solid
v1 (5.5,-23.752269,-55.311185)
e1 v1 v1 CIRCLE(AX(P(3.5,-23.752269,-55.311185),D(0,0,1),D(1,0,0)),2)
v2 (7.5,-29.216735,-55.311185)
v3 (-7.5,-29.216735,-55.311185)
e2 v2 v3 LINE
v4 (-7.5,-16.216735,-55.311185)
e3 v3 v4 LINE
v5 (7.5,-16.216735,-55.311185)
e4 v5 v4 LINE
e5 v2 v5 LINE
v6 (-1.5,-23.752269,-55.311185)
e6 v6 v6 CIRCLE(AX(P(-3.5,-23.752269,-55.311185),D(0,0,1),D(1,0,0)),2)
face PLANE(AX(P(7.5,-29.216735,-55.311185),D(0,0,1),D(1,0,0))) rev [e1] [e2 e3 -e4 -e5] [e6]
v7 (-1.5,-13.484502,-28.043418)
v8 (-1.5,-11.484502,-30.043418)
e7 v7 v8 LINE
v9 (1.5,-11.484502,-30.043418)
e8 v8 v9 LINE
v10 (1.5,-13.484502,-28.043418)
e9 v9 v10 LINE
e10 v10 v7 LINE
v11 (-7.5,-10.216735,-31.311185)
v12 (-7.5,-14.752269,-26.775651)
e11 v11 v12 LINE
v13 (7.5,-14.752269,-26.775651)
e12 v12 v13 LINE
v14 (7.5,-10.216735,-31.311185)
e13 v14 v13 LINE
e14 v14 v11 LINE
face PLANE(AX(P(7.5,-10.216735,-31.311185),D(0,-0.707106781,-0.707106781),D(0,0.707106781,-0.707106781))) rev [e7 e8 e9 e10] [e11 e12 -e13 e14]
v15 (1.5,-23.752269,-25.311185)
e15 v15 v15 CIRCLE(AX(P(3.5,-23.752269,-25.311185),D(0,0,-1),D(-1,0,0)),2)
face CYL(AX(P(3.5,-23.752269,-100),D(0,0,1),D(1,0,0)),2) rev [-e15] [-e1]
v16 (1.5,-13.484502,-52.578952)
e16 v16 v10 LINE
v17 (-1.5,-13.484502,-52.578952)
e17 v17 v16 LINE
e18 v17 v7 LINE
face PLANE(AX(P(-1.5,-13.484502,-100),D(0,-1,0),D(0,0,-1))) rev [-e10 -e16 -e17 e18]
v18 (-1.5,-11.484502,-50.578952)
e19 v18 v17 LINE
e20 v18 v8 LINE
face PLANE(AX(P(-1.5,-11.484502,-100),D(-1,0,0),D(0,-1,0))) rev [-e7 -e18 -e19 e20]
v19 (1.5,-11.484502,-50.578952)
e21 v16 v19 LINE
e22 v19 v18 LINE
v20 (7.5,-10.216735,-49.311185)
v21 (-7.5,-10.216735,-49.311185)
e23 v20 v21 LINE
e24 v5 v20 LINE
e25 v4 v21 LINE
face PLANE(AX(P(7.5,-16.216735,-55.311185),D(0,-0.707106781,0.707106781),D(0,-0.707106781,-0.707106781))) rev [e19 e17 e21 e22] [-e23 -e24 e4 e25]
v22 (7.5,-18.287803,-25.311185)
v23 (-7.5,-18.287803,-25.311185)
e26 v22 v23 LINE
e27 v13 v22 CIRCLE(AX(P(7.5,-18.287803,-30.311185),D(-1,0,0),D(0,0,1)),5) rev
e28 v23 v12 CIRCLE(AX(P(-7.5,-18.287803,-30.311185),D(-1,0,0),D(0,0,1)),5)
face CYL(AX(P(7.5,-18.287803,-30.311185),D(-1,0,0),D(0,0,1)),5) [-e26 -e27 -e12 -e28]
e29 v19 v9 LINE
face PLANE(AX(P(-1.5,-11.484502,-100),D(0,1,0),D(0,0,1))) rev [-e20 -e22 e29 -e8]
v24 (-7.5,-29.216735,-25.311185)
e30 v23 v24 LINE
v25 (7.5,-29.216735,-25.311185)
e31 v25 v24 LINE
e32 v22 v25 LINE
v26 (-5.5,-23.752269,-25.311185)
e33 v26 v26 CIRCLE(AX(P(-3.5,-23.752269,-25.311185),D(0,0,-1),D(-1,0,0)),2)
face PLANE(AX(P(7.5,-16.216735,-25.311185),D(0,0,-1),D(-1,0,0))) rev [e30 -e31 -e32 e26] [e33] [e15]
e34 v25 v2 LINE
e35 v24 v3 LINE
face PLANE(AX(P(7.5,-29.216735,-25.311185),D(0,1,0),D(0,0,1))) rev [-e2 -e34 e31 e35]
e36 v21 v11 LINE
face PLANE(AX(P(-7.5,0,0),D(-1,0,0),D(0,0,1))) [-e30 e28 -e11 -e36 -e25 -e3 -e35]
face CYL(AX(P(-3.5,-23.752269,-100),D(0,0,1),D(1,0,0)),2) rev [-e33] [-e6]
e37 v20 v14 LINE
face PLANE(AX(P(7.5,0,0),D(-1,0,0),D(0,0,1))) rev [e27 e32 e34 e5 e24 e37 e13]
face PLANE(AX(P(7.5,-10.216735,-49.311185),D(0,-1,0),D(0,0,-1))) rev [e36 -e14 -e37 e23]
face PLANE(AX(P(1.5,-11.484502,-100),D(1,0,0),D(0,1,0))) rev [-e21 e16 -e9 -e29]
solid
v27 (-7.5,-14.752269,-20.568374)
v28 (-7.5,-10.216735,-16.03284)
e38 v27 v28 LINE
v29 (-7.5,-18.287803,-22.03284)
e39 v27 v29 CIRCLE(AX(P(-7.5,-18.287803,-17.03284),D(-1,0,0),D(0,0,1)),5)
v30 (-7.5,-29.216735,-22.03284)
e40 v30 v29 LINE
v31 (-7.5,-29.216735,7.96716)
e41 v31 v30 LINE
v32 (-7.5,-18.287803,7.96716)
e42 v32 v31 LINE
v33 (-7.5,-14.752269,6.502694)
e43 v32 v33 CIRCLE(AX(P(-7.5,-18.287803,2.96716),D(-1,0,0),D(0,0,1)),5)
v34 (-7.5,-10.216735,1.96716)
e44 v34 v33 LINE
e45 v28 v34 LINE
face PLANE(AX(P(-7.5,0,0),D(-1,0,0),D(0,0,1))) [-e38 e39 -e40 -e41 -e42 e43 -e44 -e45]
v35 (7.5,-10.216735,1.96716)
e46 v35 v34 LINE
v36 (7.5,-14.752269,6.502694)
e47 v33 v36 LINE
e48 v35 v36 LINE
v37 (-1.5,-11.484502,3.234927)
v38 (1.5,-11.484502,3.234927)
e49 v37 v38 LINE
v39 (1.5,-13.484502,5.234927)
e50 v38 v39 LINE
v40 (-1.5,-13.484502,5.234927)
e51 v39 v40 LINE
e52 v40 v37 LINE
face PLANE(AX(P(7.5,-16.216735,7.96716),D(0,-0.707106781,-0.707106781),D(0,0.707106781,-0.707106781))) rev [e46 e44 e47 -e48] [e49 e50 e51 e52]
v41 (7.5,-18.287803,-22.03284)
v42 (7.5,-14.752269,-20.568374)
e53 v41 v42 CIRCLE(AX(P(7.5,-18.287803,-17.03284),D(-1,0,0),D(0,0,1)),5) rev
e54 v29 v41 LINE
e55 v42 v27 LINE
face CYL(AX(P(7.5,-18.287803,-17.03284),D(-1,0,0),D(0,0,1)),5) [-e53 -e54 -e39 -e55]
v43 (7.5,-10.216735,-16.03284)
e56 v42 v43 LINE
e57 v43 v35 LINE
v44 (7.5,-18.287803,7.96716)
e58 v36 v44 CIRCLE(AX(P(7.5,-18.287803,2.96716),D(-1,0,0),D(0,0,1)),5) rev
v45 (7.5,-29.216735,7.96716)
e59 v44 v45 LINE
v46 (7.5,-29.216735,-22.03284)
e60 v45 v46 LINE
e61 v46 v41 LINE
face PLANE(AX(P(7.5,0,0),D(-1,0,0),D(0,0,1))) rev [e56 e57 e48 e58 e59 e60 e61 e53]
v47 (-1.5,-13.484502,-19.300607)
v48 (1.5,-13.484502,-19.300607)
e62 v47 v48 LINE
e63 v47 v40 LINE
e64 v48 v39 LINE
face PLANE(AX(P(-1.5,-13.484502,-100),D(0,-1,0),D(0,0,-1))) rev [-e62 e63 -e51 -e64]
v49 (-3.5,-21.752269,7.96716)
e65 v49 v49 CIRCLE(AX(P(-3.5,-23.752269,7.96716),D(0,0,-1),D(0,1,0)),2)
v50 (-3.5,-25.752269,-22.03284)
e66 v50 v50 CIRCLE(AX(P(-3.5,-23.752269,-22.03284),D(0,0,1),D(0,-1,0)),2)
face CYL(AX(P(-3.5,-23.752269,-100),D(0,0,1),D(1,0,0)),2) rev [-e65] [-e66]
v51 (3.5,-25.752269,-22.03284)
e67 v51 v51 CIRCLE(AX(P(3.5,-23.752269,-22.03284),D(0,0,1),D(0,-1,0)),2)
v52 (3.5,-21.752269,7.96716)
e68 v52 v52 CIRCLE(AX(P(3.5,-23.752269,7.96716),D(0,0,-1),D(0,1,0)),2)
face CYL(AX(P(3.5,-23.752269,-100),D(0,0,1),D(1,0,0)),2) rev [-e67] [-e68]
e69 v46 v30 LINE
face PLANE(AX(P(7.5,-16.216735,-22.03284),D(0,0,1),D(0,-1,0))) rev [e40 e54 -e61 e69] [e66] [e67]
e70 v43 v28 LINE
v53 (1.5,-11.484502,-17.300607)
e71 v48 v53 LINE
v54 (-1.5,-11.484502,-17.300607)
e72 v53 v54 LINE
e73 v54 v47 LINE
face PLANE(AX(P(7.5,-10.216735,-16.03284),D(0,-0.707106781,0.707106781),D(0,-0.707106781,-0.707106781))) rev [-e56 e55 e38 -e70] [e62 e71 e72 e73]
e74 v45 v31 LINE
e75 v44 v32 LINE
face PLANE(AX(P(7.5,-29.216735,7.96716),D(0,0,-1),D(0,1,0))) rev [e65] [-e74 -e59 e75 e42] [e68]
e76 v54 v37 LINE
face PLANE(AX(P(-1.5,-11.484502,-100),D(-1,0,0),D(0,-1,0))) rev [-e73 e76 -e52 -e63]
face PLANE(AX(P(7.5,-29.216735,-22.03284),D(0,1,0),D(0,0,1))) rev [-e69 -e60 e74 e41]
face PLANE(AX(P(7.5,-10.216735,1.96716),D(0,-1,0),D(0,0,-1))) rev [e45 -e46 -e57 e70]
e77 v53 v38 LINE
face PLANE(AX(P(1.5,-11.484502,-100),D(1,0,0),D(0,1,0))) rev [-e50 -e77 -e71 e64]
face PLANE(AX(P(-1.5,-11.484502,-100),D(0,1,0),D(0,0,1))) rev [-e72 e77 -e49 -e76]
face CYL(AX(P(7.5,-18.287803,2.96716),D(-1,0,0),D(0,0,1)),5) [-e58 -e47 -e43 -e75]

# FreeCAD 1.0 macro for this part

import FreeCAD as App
import Part
import Sketcher
from FreeCAD import Vector
Q = App.Units.Quantity


def edges_at(feature, points):
    """Names of the edges that pass closest to the given points."""
    edges = feature.Shape.Edges
    near = lambda p: min(range(len(edges)), key=lambda i: edges[i].distToShape(Part.Vertex(*p))[0])
    return sorted({f"Edge{near(p) + 1}" for p in points})

doc = App.newDocument("Part")
body = doc.addObject("PartDesign::Body", "Body")

# Sketch on YZ plane
sketch1 = body.newObject("Sketcher::SketchObject", "Sketch")
sketch1.AttachmentSupport = (doc.getObject("YZ_Plane"), [""])
sketch1.MapMode = "FlatFace"
sketch1.addGeometry(Part.LineSegment(Vector(-16.216735, 7.96716, 0), Vector(-29.216735, 7.96716, 0)), False)
sketch1.addGeometry(Part.LineSegment(Vector(-29.216735, 7.96716, 0), Vector(-29.216735, -22.03284, 0)), False)
sketch1.addGeometry(Part.LineSegment(Vector(-29.216735, -22.03284, 0), Vector(-16.216735, -22.03284, 0)), False)
sketch1.addGeometry(Part.LineSegment(Vector(-16.216735, -22.03284, 0), Vector(-10.216735, -16.03284, 0)), False)
sketch1.addGeometry(Part.LineSegment(Vector(-10.216735, -16.03284, 0), Vector(-10.216735, 1.96716, 0)), False)
sketch1.addGeometry(Part.LineSegment(Vector(-10.216735, 1.96716, 0), Vector(-16.216735, 7.96716, 0)), False)
sketch1.addConstraint(Sketcher.Constraint("Coincident", 0, 2, 1, 1))
sketch1.addConstraint(Sketcher.Constraint("Coincident", 1, 2, 2, 1))
sketch1.addConstraint(Sketcher.Constraint("Coincident", 2, 2, 3, 1))
sketch1.addConstraint(Sketcher.Constraint("Coincident", 3, 2, 4, 1))
sketch1.addConstraint(Sketcher.Constraint("Coincident", 4, 2, 5, 1))
sketch1.addConstraint(Sketcher.Constraint("Coincident", 5, 2, 0, 1))
sketch1.addConstraint(Sketcher.Constraint("Horizontal", 0))
sketch1.addConstraint(Sketcher.Constraint("Vertical", 1))
sketch1.addConstraint(Sketcher.Constraint("Horizontal", 2))
sketch1.addConstraint(Sketcher.Constraint("Vertical", 4))
sketch1.addConstraint(Sketcher.Constraint("Perpendicular", 3, 5))
sketch1.addConstraint(Sketcher.Constraint("Vertical", 2, 2, 5, 2))
sketch1.addConstraint(Sketcher.Constraint("Equal", 3, 5))
sketch1.addConstraint(Sketcher.Constraint("DistanceX", 0, 2, 0, 1, Q("13 mm")))
sketch1.addConstraint(Sketcher.Constraint("DistanceY", 1, 2, 1, 1, Q("30 mm")))
sketch1.addConstraint(Sketcher.Constraint("DistanceY", 4, 1, 4, 2, Q("18 mm")))
sketch1.addConstraint(Sketcher.Constraint("DistanceY", -1, 1, 0, 2, Q("7.96716 mm")))
sketch1.addConstraint(Sketcher.Constraint("DistanceX", 0, 2, -1, 1, Q("29.216735 mm")))
pad1 = body.newObject("PartDesign::Pad", "Pad")
pad1.Profile = sketch1
pad1.Length = 15
pad1.Midplane = True
doc.recompute()

fillet = body.newObject("PartDesign::Fillet", "Fillet")
fillet.Base = (pad1, edges_at(pad1, [(0, -16.217, 7.967), (0, -16.217, -22.033)]))
fillet.Radius = 5
body2 = doc.addObject("PartDesign::Body", "Body001")

# Sketch on YZ plane
sketch2 = body2.newObject("Sketcher::SketchObject", "Sketch001")
sketch2.AttachmentSupport = (doc.getObject("YZ_Plane001"), [""])
sketch2.MapMode = "FlatFace"
sketch2.addGeometry(Part.LineSegment(Vector(-16.216735, -25.311185, 0), Vector(-29.216735, -25.311185, 0)), False)
sketch2.addGeometry(Part.LineSegment(Vector(-29.216735, -25.311185, 0), Vector(-29.216735, -55.311185, 0)), False)
sketch2.addGeometry(Part.LineSegment(Vector(-29.216735, -55.311185, 0), Vector(-16.216735, -55.311185, 0)), False)
sketch2.addGeometry(Part.LineSegment(Vector(-16.216735, -55.311185, 0), Vector(-10.216735, -49.311185, 0)), False)
sketch2.addGeometry(Part.LineSegment(Vector(-10.216735, -49.311185, 0), Vector(-10.216735, -31.311185, 0)), False)
sketch2.addGeometry(Part.LineSegment(Vector(-10.216735, -31.311185, 0), Vector(-16.216735, -25.311185, 0)), False)
sketch2.addConstraint(Sketcher.Constraint("Coincident", 0, 2, 1, 1))
sketch2.addConstraint(Sketcher.Constraint("Coincident", 1, 2, 2, 1))
sketch2.addConstraint(Sketcher.Constraint("Coincident", 2, 2, 3, 1))
sketch2.addConstraint(Sketcher.Constraint("Coincident", 3, 2, 4, 1))
sketch2.addConstraint(Sketcher.Constraint("Coincident", 4, 2, 5, 1))
sketch2.addConstraint(Sketcher.Constraint("Coincident", 5, 2, 0, 1))
sketch2.addConstraint(Sketcher.Constraint("Horizontal", 0))
sketch2.addConstraint(Sketcher.Constraint("Vertical", 1))
sketch2.addConstraint(Sketcher.Constraint("Horizontal", 2))
sketch2.addConstraint(Sketcher.Constraint("Vertical", 4))
sketch2.addConstraint(Sketcher.Constraint("Perpendicular", 3, 5))
sketch2.addConstraint(Sketcher.Constraint("Vertical", 2, 2, 5, 2))
sketch2.addConstraint(Sketcher.Constraint("Equal", 3, 5))
sketch2.addConstraint(Sketcher.Constraint("DistanceX", 0, 2, 0, 1, Q("13 mm")))
sketch2.addConstraint(Sketcher.Constraint("DistanceY", 1, 2, 1, 1, Q("30 mm")))
sketch2.addConstraint(Sketcher.Constraint("DistanceY", 4, 1, 4, 2, Q("18 mm")))
sketch2.addConstraint(Sketcher.Constraint("DistanceX", 0, 2, -1, 1, Q("29.216735 mm")))
sketch2.addConstraint(Sketcher.Constraint("DistanceY", 0, 2, -1, 1, Q("25.311185 mm")))
pad2 = body2.newObject("PartDesign::Pad", "Pad001")
pad2.Profile = sketch2
pad2.Length = 15
pad2.Midplane = True
doc.recompute()

fillet2 = body2.newObject("PartDesign::Fillet", "Fillet001")
fillet2.Base = (pad2, edges_at(pad2, [(0, -16.217, -25.311)]))
fillet2.Radius = 5
body3 = doc.addObject("PartDesign::Body", "Body002")
body3.AllowCompound = True

# Sketch on XY plane
sketch3 = body3.newObject("Sketcher::SketchObject", "Sketch002")
sketch3.AttachmentSupport = (doc.getObject("XY_Plane002"), [""])
sketch3.MapMode = "FlatFace"
sketch3.addGeometry(Part.Circle(Vector(-3.5, -23.752269, 0), Vector(0, 0, 1), 2), False)
sketch3.addGeometry(Part.Circle(Vector(3.5, -23.752269, 0), Vector(0, 0, 1), 2), False)
sketch3.addGeometry(Part.LineSegment(Vector(-1.5, -11.484502, 0), Vector(-1.5, -13.484502, 0)), False)
sketch3.addGeometry(Part.LineSegment(Vector(-1.5, -13.484502, 0), Vector(1.5, -13.484502, 0)), False)
sketch3.addGeometry(Part.LineSegment(Vector(1.5, -13.484502, 0), Vector(1.5, -11.484502, 0)), False)
sketch3.addGeometry(Part.LineSegment(Vector(1.5, -11.484502, 0), Vector(-1.5, -11.484502, 0)), False)
sketch3.addConstraint(Sketcher.Constraint("Coincident", 2, 2, 3, 1))
sketch3.addConstraint(Sketcher.Constraint("Coincident", 3, 2, 4, 1))
sketch3.addConstraint(Sketcher.Constraint("Coincident", 4, 2, 5, 1))
sketch3.addConstraint(Sketcher.Constraint("Coincident", 5, 2, 2, 1))
sketch3.addConstraint(Sketcher.Constraint("Vertical", 2))
sketch3.addConstraint(Sketcher.Constraint("Horizontal", 3))
sketch3.addConstraint(Sketcher.Constraint("Vertical", 4))
sketch3.addConstraint(Sketcher.Constraint("Horizontal", 5))
sketch3.addConstraint(Sketcher.Constraint("Equal", 0, 1))
sketch3.addConstraint(Sketcher.Constraint("Symmetric", 0, 3, 1, 3, -2))
sketch3.addConstraint(Sketcher.Constraint("Diameter", 0, Q("4 mm")))
sketch3.addConstraint(Sketcher.Constraint("DistanceX", 3, 1, 3, 2, Q("3 mm")))
sketch3.addConstraint(Sketcher.Constraint("DistanceY", 2, 2, 2, 1, Q("2 mm")))
sketch3.addConstraint(Sketcher.Constraint("DistanceX", 0, 3, 1, 3, Q("7 mm")))
sketch3.addConstraint(Sketcher.Constraint("DistanceX", 0, 3, 2, 2, Q("2 mm")))
sketch3.addConstraint(Sketcher.Constraint("DistanceY", 2, 2, -1, 1, Q("13.484502 mm")))
sketch3.addConstraint(Sketcher.Constraint("DistanceY", 0, 3, -1, 1, Q("23.752269 mm")))
pad3 = body3.newObject("PartDesign::Pad", "Pad002")
pad3.Profile = sketch3
pad3.Length = 200
pad3.Midplane = True
doc.recompute()

body4 = doc.addObject("PartDesign::Body", "Body003")
body4.BaseFeature = body3
boolean = body.newObject("PartDesign::Boolean", "Boolean")
boolean.Type = "Cut"
boolean.addObjects([body4])
doc.recompute()

boolean2 = body2.newObject("PartDesign::Boolean", "Boolean001")
boolean2.Type = "Cut"
boolean2.addObjects([body3])

doc.recompute()
